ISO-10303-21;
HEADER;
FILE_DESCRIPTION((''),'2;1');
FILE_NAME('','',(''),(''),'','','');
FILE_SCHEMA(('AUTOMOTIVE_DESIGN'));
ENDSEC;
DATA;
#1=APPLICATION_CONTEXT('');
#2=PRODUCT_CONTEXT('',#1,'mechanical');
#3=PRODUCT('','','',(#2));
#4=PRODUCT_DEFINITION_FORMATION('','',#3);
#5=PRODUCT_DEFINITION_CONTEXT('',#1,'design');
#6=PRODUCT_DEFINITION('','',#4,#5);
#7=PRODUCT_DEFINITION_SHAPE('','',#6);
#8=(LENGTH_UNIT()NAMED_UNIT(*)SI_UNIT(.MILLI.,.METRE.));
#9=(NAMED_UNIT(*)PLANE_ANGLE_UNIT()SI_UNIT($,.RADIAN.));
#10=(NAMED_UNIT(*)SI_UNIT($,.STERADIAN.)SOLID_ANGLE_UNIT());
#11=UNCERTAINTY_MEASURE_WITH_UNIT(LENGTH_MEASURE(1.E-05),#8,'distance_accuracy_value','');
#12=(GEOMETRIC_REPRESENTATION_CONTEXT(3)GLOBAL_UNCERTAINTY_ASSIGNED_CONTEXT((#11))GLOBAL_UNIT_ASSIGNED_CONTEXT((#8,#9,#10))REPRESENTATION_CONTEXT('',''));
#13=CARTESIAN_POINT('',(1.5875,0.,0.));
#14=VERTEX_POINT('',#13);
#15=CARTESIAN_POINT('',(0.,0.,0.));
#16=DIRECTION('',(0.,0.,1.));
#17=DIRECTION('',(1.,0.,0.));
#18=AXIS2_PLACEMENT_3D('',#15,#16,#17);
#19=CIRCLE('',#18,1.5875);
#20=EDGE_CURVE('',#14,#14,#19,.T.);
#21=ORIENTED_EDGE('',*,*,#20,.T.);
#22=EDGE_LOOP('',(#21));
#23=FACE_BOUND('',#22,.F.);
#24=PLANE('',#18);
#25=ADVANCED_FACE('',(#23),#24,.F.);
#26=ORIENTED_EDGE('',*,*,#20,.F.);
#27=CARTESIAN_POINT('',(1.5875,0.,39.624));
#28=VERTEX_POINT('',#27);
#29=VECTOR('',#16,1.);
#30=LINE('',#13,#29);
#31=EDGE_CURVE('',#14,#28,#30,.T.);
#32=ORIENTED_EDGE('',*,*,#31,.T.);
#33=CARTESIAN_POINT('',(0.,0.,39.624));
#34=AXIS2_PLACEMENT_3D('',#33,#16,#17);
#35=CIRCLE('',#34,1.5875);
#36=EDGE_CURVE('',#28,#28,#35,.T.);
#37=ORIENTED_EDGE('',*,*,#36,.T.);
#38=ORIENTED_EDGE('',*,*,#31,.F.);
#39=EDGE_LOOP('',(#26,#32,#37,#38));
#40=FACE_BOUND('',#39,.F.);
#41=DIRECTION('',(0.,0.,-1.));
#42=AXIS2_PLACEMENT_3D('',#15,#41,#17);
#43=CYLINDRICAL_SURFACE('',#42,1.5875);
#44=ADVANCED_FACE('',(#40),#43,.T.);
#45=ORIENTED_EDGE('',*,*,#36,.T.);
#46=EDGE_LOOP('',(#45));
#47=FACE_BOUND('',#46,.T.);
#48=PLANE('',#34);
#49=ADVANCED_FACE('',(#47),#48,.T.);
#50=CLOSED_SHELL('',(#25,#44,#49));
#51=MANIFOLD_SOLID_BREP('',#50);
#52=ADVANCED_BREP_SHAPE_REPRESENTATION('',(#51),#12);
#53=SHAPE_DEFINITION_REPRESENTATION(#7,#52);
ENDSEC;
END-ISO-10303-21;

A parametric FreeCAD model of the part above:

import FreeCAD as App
import Part
import Sketcher

V = App.Vector
Q = App.Units.Quantity

doc = App.newDocument("Part")
body = doc.addObject("PartDesign::Body", "Body")

sketch1 = body.newObject("Sketcher::SketchObject", "Sketch")
sketch1.AttachmentSupport = (doc.getObject("XY_Plane"), [""])
sketch1.MapMode = "FlatFace"
sketch1.addGeometry(Part.Circle(V(0, 0, 0), V(0, 0, 1), 1.5875), False)
sketch1.addConstraint([
    Sketcher.Constraint("Coincident", 0, 3, -1, 1),
    Sketcher.Constraint("Diameter", 0, Q("0.125 in")),
])
pad1 = body.newObject("PartDesign::Pad", "Pad")
pad1.Profile = sketch1
pad1.Length = Q("1.56 in")

doc.recompute()
